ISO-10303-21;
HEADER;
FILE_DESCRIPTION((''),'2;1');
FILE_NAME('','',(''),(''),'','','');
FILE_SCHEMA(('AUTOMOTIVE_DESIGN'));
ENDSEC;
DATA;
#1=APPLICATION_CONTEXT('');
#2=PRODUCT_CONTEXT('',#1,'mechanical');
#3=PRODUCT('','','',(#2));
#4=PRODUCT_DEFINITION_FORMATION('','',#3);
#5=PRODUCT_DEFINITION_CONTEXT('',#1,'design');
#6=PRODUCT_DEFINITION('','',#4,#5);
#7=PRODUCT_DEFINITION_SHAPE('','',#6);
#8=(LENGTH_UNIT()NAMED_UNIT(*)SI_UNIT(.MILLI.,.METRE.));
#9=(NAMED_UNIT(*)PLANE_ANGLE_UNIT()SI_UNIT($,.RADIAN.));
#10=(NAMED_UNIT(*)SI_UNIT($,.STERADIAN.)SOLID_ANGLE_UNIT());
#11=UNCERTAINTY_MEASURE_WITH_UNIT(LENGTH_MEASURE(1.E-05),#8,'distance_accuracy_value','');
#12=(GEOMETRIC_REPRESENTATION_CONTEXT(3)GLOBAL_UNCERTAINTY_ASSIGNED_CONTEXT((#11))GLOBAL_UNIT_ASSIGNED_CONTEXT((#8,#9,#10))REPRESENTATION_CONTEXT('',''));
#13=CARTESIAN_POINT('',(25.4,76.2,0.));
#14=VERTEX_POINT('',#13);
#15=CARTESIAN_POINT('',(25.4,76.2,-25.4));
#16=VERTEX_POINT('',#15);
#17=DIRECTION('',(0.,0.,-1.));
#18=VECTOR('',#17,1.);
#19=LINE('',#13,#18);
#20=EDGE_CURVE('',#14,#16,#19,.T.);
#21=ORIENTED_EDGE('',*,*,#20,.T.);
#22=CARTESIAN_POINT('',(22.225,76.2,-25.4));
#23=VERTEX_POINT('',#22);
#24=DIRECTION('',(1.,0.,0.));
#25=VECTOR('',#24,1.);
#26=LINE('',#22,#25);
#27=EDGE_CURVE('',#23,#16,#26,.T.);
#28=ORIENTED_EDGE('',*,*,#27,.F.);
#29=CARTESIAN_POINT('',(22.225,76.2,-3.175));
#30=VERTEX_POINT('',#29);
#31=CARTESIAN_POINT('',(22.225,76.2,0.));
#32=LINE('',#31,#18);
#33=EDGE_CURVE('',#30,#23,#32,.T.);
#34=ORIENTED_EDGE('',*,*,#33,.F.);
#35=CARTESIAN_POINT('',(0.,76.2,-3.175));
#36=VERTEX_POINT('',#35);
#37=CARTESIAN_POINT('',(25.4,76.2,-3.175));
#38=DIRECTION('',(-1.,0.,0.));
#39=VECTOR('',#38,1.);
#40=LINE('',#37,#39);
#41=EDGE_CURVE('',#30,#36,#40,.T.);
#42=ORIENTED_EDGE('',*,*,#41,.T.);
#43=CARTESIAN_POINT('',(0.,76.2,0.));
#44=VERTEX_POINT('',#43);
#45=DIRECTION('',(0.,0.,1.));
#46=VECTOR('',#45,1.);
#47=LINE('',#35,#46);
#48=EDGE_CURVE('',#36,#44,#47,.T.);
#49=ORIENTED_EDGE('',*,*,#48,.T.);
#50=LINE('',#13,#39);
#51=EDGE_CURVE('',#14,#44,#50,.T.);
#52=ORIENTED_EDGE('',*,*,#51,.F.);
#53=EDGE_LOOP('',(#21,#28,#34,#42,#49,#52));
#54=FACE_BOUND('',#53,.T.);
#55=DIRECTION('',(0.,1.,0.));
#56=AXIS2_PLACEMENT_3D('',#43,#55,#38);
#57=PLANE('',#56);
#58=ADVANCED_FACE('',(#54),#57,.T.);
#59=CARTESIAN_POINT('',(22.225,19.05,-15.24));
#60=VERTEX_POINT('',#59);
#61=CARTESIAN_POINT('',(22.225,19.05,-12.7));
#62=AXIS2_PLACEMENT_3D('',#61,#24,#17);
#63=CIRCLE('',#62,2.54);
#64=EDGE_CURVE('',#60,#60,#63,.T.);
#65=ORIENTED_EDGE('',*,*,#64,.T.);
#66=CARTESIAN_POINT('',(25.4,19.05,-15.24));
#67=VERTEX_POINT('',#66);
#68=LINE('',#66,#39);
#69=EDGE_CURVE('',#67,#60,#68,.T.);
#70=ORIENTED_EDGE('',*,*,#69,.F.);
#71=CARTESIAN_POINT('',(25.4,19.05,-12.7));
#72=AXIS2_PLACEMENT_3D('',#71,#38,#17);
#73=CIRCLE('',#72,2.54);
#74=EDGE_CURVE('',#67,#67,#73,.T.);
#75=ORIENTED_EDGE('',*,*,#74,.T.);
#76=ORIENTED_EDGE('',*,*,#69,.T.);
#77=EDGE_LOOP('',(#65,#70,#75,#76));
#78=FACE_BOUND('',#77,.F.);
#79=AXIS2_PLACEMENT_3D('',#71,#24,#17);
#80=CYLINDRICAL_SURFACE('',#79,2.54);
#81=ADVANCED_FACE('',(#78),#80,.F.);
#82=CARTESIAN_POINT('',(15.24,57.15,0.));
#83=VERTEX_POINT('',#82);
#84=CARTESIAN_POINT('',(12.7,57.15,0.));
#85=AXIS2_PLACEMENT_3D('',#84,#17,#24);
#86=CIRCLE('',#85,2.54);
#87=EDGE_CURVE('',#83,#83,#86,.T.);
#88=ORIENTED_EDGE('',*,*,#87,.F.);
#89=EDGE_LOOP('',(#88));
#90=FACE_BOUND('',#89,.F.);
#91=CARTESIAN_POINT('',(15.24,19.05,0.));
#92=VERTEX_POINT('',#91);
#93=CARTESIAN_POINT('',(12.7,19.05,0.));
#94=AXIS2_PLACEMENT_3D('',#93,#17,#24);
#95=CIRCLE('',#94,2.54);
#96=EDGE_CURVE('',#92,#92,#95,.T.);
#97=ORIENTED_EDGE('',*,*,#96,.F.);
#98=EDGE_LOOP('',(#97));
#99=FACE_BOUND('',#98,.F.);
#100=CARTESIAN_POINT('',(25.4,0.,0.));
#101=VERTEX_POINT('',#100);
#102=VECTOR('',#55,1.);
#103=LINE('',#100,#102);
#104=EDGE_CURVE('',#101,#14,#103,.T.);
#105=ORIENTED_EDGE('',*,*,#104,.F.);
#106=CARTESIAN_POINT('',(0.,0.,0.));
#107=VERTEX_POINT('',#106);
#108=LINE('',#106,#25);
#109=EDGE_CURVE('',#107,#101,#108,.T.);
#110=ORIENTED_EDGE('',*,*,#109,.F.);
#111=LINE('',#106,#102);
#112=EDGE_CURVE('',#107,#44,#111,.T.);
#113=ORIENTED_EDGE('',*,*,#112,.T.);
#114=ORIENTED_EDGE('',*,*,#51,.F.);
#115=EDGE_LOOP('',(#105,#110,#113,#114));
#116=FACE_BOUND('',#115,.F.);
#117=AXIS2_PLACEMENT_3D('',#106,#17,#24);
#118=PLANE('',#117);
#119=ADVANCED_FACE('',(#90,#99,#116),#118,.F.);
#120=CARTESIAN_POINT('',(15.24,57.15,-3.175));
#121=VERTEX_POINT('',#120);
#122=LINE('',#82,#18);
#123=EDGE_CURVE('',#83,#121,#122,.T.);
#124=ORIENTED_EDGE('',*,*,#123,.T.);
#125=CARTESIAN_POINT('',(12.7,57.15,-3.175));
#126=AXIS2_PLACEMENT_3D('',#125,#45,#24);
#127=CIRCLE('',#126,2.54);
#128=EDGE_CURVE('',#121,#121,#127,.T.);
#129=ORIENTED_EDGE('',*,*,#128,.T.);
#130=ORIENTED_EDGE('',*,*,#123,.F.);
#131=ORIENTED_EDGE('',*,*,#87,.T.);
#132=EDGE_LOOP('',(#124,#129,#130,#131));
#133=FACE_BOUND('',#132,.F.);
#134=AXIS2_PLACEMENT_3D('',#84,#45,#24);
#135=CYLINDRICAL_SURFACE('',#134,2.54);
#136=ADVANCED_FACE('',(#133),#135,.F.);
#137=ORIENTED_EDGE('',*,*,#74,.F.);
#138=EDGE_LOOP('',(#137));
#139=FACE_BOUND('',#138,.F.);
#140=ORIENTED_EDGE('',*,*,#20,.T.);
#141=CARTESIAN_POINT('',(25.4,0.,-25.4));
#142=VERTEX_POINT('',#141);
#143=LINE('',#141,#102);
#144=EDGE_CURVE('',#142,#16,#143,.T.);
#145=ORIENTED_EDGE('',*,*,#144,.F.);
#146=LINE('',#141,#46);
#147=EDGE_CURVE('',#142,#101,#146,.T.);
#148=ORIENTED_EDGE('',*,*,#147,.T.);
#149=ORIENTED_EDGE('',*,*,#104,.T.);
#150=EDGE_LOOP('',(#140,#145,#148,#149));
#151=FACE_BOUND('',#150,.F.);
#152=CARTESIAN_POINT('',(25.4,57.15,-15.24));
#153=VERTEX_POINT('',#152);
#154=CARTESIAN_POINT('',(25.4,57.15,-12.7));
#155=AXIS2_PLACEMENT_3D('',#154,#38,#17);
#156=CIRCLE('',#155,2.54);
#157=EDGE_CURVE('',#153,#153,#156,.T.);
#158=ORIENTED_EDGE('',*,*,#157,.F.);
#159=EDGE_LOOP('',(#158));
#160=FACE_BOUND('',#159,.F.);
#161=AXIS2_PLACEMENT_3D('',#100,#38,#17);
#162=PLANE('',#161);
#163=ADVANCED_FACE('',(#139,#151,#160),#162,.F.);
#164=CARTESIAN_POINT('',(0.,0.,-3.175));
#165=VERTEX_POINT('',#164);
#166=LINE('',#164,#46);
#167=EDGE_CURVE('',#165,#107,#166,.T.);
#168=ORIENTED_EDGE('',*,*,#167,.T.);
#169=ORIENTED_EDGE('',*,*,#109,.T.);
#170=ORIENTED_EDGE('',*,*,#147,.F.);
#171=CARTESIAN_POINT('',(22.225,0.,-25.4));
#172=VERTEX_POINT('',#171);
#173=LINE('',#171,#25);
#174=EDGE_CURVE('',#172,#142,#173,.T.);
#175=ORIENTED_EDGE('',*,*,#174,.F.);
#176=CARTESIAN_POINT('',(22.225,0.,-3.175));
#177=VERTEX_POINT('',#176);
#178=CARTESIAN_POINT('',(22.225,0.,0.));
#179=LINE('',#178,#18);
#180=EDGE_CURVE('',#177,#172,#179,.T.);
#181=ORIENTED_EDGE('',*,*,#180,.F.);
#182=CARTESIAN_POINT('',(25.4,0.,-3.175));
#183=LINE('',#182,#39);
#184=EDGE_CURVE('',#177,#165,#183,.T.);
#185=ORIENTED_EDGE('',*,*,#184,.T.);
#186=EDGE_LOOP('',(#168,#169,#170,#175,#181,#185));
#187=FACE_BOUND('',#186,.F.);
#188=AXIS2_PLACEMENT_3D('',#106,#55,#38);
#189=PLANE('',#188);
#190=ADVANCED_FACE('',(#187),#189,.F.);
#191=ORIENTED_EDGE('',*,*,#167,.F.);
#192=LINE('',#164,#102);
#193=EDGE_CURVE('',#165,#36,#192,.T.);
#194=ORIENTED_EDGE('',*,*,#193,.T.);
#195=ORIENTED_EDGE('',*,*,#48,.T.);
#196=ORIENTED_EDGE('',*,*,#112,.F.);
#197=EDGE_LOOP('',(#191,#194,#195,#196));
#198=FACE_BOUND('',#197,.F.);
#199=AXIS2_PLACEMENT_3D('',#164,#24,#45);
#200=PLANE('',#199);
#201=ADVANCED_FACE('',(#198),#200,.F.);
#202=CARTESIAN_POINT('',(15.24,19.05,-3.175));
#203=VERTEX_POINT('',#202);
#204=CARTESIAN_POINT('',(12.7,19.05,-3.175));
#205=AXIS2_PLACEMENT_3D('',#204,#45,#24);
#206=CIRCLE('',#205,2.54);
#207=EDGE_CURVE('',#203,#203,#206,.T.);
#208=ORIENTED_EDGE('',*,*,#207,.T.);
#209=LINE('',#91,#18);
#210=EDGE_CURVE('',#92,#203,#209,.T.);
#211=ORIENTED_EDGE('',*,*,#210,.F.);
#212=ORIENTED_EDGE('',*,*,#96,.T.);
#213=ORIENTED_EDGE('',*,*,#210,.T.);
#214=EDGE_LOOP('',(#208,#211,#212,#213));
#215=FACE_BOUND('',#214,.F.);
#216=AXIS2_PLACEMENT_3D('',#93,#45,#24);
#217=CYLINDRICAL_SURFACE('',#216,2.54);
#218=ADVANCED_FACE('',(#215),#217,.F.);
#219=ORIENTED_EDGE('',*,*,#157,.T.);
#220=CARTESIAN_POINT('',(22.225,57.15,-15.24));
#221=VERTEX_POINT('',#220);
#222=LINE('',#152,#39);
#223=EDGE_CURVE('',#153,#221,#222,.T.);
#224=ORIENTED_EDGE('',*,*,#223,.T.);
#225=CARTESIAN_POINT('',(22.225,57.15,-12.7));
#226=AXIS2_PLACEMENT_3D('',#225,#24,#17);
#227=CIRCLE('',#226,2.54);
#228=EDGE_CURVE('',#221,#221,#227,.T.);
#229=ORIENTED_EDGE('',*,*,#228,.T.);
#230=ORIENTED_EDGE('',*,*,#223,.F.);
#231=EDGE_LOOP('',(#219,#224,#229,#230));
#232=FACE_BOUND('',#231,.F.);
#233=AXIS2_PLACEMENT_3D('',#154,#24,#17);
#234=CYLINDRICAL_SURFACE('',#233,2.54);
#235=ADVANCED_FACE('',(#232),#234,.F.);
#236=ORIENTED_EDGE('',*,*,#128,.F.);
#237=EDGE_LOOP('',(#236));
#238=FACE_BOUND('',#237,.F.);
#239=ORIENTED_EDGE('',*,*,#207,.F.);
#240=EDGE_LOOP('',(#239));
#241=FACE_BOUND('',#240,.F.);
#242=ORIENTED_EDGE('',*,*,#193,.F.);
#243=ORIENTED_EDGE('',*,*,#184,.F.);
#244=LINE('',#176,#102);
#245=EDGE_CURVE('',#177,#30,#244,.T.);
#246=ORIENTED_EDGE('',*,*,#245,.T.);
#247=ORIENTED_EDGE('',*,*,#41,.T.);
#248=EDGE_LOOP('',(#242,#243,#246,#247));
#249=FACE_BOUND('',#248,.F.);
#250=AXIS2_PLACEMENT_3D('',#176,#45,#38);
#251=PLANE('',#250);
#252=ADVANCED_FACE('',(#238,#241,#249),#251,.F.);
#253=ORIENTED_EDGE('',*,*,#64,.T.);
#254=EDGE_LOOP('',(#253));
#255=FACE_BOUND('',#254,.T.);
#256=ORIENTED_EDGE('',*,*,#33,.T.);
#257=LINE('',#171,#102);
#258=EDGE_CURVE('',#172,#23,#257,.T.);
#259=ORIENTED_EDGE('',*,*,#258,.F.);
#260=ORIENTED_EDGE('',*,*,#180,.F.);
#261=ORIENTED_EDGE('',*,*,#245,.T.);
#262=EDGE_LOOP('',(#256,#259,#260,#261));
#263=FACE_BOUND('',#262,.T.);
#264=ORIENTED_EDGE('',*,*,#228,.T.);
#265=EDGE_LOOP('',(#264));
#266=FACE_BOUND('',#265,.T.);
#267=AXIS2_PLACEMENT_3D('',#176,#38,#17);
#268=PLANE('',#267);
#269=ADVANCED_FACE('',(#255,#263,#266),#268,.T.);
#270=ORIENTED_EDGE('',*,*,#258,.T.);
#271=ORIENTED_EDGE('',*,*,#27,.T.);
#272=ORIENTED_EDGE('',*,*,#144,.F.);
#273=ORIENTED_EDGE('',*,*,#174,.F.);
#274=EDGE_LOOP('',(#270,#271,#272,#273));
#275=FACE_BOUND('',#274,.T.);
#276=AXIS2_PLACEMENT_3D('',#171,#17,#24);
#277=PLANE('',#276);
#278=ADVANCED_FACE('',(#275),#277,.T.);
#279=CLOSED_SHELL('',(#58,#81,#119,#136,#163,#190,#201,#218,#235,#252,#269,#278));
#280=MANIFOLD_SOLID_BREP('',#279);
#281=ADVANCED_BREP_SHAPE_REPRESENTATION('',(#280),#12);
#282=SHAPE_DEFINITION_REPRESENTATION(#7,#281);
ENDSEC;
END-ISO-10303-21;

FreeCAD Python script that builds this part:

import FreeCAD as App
import Part
import Sketcher
Q = App.Units.Quantity

doc = App.newDocument("Part")
params = doc.addObject("Spreadsheet::Sheet", "Params")
for row, (alias, value) in enumerate([
    ("sketch1_width", "1 in"),
    ("sketch1_width2", "0.125 in"),
    ("pad1_length", "3 in"),
    ("sketch2_diameter", "0.2 in"),
    ("pocket1_length", "1 in"),
    ("sketch3_diameter", "0.2 in"),
    ("pocket2_length", "1 in"),
], start=1):
    params.set(f"A{row}", alias)
    params.set(f"B{row}", "=" + value)
    params.setAlias(f"B{row}", alias)

body = doc.addObject("PartDesign::Body", "Body")

sketch1 = doc.addObject("Sketcher::SketchObject", "Sketch")
body.addObject(sketch1)
sketch1.AttachmentSupport = (doc.XZ_Plane, [""])
sketch1.MapMode = "FlatFace"
sketch1.addGeometry(Part.LineSegment(App.Vector(0, -3.2, 0), App.Vector(0, 0, 0)), False)
sketch1.addGeometry(Part.LineSegment(App.Vector(0, 0, 0), App.Vector(25.4, 0, 0)), False)
sketch1.addGeometry(Part.LineSegment(App.Vector(25.4, 0, 0), App.Vector(25.4, -25.4, 0)), False)
sketch1.addGeometry(Part.LineSegment(App.Vector(25.4, -25.4, 0), App.Vector(22.2, -25.4, 0)), False)
sketch1.addGeometry(Part.LineSegment(App.Vector(22.2, -25.4, 0), App.Vector(22.2, -3.2, 0)), False)
sketch1.addGeometry(Part.LineSegment(App.Vector(22.2, -3.2, 0), App.Vector(0, -3.2, 0)), False)
sketch1.addConstraint(Sketcher.Constraint("Coincident", 0, 2, 1, 1))
sketch1.addConstraint(Sketcher.Constraint("Coincident", 1, 2, 2, 1))
sketch1.addConstraint(Sketcher.Constraint("Coincident", 2, 2, 3, 1))
sketch1.addConstraint(Sketcher.Constraint("Coincident", 3, 2, 4, 1))
sketch1.addConstraint(Sketcher.Constraint("Coincident", 4, 2, 5, 1))
sketch1.addConstraint(Sketcher.Constraint("Coincident", 5, 2, 0, 1))
sketch1.addConstraint(Sketcher.Constraint("Vertical", 0))
sketch1.addConstraint(Sketcher.Constraint("Horizontal", 1))
sketch1.addConstraint(Sketcher.Constraint("Vertical", 2))
sketch1.addConstraint(Sketcher.Constraint("Horizontal", 3))
sketch1.addConstraint(Sketcher.Constraint("Vertical", 4))
sketch1.addConstraint(Sketcher.Constraint("Horizontal", 5))
sketch1.addConstraint(Sketcher.Constraint("Coincident", 0, 2, -1, 1))
sketch1.addConstraint(Sketcher.Constraint("Equal", 3, 0))
sketch1.addConstraint(Sketcher.Constraint("Equal", 1, 2))
sketch1.addConstraint(Sketcher.Constraint("DistanceX", 1, 1, 1, 2, Q("1 in")))
sketch1.addConstraint(Sketcher.Constraint("DistanceX", 3, 2, 3, 1, Q("0.125 in")))
sketch1.setExpression("Constraints[15]", "Params.sketch1_width")
sketch1.setExpression("Constraints[16]", "Params.sketch1_width2")
pad1 = doc.addObject("PartDesign::Pad", "Pad")
body.addObject(pad1)
pad1.Profile = sketch1
pad1.setExpression("Length", "Params.pad1_length")
pad1.Reversed = True

sketch2 = doc.addObject("Sketcher::SketchObject", "Sketch001")
body.addObject(sketch2)
sketch2.AttachmentSupport = (doc.YZ_Plane, [""])
sketch2.MapMode = "FlatFace"
sketch2.AttachmentOffset = App.Placement(App.Vector(0, 0, 1 * 25.4), App.Rotation())
sketch2.addGeometry(Part.Circle(App.Vector(57.1, -12.7, 0), App.Vector(0, 0, 1), 2.5), False)
sketch2.addGeometry(Part.Circle(App.Vector(19.1, -12.7, 0), App.Vector(0, 0, 1), 2.5), False)
sketch2.addConstraint(Sketcher.Constraint("Equal", 0, 1))
sketch2.addConstraint(Sketcher.Constraint("Horizontal", 0, 3, 1, 3))
sketch2.addConstraint(Sketcher.Constraint("Diameter", 0, Q("0.2 in")))
sketch2.addConstraint(Sketcher.Constraint("DistanceY", 0, 3, -1, 1, Q("0.5 in")))
sketch2.addConstraint(Sketcher.Constraint("DistanceX", -1, 1, 1, 3, Q("0.75 in")))
sketch2.addConstraint(Sketcher.Constraint("DistanceX", 1, 3, 0, 3, Q("1.5 in")))
sketch2.setExpression("Constraints[2]", "Params.sketch2_diameter")
pocket1 = doc.addObject("PartDesign::Pocket", "Pocket")
body.addObject(pocket1)
pocket1.Profile = sketch2
pocket1.setExpression("Length", "Params.pocket1_length")

sketch3 = doc.addObject("Sketcher::SketchObject", "Sketch002")
body.addObject(sketch3)
sketch3.AttachmentSupport = (doc.XY_Plane, [""])
sketch3.MapMode = "FlatFace"
sketch3.addGeometry(Part.Circle(App.Vector(12.7, 57.1, 0), App.Vector(0, 0, 1), 2.5), False)
sketch3.addGeometry(Part.Circle(App.Vector(12.7, 19.1, 0), App.Vector(0, 0, 1), 2.5), False)
sketch3.addConstraint(Sketcher.Constraint("Equal", 0, 1))
sketch3.addConstraint(Sketcher.Constraint("Vertical", 0, 3, 1, 3))
sketch3.addConstraint(Sketcher.Constraint("Diameter", 0, Q("0.2 in")))
sketch3.addConstraint(Sketcher.Constraint("DistanceY", -1, 1, 1, 3, Q("0.75 in")))
sketch3.addConstraint(Sketcher.Constraint("DistanceX", -1, 1, 0, 3, Q("0.5 in")))
sketch3.addConstraint(Sketcher.Constraint("DistanceY", 1, 3, 0, 3, Q("1.5 in")))
sketch3.setExpression("Constraints[2]", "Params.sketch3_diameter")
pocket2 = doc.addObject("PartDesign::Pocket", "Pocket001")
body.addObject(pocket2)
pocket2.Profile = sketch3
pocket2.setExpression("Length", "Params.pocket2_length")

doc.recompute()
